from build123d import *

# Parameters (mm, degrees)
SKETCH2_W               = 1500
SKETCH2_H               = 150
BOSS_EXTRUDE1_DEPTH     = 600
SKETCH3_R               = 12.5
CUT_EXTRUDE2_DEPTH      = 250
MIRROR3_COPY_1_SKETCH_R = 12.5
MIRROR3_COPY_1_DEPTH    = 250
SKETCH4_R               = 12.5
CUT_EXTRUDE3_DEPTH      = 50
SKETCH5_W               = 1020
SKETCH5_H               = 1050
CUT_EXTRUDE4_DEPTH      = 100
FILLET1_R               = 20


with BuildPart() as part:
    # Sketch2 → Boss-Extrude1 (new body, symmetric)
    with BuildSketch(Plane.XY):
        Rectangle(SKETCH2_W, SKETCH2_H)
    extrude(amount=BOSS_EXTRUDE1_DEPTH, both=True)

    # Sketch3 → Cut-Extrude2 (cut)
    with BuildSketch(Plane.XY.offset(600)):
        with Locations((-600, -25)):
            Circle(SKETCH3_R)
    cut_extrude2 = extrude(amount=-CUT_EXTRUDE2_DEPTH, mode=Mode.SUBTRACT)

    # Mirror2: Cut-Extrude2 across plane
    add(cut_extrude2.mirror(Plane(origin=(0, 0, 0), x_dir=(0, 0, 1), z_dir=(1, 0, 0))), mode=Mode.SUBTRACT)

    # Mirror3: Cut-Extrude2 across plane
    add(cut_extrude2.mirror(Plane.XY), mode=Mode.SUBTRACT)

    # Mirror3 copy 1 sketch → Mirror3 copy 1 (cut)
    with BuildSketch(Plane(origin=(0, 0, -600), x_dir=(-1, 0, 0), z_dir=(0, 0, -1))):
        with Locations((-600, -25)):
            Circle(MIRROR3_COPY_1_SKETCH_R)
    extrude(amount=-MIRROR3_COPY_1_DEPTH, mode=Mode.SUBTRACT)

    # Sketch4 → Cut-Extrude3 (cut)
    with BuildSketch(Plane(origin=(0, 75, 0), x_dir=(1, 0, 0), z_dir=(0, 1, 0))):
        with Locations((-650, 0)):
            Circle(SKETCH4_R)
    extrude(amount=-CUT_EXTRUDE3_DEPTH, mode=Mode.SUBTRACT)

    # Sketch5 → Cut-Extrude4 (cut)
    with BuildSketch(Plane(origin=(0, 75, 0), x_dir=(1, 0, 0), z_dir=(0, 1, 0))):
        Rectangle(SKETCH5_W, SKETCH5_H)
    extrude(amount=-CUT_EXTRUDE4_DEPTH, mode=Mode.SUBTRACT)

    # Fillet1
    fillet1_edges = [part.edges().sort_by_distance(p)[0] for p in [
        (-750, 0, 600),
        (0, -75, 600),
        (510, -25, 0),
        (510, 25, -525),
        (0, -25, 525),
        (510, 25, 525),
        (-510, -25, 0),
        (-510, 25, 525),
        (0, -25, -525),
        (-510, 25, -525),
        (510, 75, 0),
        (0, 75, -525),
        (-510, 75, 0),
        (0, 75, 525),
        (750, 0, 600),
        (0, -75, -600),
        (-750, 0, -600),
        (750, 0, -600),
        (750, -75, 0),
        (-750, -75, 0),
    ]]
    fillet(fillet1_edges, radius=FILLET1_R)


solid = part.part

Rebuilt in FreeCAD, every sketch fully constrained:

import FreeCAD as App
import Part
import Sketcher
Q = App.Units.Quantity


def edges_at(feature, points):
    """Names of the edges that pass closest to the given points."""
    edges = feature.Shape.Edges
    near = lambda p: min(range(len(edges)), key=lambda i: edges[i].distToShape(Part.Vertex(*p))[0])
    return sorted({f"Edge{near(p) + 1}" for p in points})

doc = App.newDocument("Part")
body = doc.addObject("PartDesign::Body", "Body")

# Sketch on XY plane
sketch1 = body.newObject("Sketcher::SketchObject", "Sketch")
sketch1.AttachmentSupport = (doc.getObject("XY_Plane"), [""])
sketch1.MapMode = "FlatFace"
sketch1.addGeometry([
    Part.LineSegment(App.Vector(-750, 75, 0), App.Vector(-750, -75, 0)),
    Part.LineSegment(App.Vector(-750, -75, 0), App.Vector(750, -75, 0)),
    Part.LineSegment(App.Vector(750, -75, 0), App.Vector(750, 75, 0)),
    Part.LineSegment(App.Vector(750, 75, 0), App.Vector(-750, 75, 0)),
], False)
sketch1.addConstraint([
    Sketcher.Constraint("Coincident", 0, 2, 1, 1),
    Sketcher.Constraint("Coincident", 1, 2, 2, 1),
    Sketcher.Constraint("Coincident", 2, 2, 3, 1),
    Sketcher.Constraint("Coincident", 3, 2, 0, 1),
    Sketcher.Constraint("Vertical", 0),
    Sketcher.Constraint("Horizontal", 1),
    Sketcher.Constraint("Vertical", 2),
    Sketcher.Constraint("Horizontal", 3),
    Sketcher.Constraint("Symmetric", 0, 2, 2, 2, -1, 1),
    Sketcher.Constraint("DistanceX", 1, 1, 1, 2, Q("1500 mm")),
    Sketcher.Constraint("DistanceY", 0, 2, 0, 1, Q("150 mm")),
])
pad1 = body.newObject("PartDesign::Pad", "Pad")
pad1.Profile = sketch1
pad1.Length = 1200
pad1.Midplane = True

# Sketch on XY plane
sketch2 = body.newObject("Sketcher::SketchObject", "Sketch001")
sketch2.AttachmentSupport = (doc.getObject("XY_Plane"), [""])
sketch2.MapMode = "FlatFace"
sketch2.AttachmentOffset = App.Placement(App.Vector(0, 0, 600), App.Rotation())
sketch2.addGeometry(Part.Circle(App.Vector(-600, -25, 0), App.Vector(0, 0, 1), 12), False)
sketch2.addConstraint([
    Sketcher.Constraint("Diameter", 0, Q("25 mm")),
    Sketcher.Constraint("DistanceX", 0, 3, -1, 1, Q("600 mm")),
    Sketcher.Constraint("DistanceY", 0, 3, -1, 1, Q("25 mm")),
])
pocket1 = body.newObject("PartDesign::Pocket", "Pocket")
pocket1.Profile = sketch2
pocket1.Length = 250
doc.recompute()

mirrored = body.newObject("PartDesign::Mirrored", "Mirrored")
mirrored.Originals = [pocket1]
mirrored.MirrorPlane = (doc.getObject("YZ_Plane"), [""])
body.Tip = mirrored
doc.recompute()

mirrored2 = body.newObject("PartDesign::Mirrored", "Mirrored001")
mirrored2.Originals = [pocket1]
mirrored2.MirrorPlane = (doc.getObject("XY_Plane"), [""])
body.Tip = mirrored2

# Sketch on XY plane
sketch3 = body.newObject("Sketcher::SketchObject", "Sketch002")
sketch3.AttachmentSupport = (doc.getObject("XY_Plane"), [""])
sketch3.MapMode = "FlatFace"
sketch3.AttachmentOffset = App.Placement(App.Vector(0, 0, -600), App.Rotation())
sketch3.addGeometry(Part.Circle(App.Vector(600, -25, 0), App.Vector(0, 0, 1), 12), False)
sketch3.addConstraint([
    Sketcher.Constraint("Diameter", 0, Q("25 mm")),
    Sketcher.Constraint("DistanceX", -1, 1, 0, 3, Q("600 mm")),
    Sketcher.Constraint("DistanceY", 0, 3, -1, 1, Q("25 mm")),
])
pocket2 = body.newObject("PartDesign::Pocket", "Pocket001")
pocket2.Profile = sketch3
pocket2.Length = 250
pocket2.Reversed = True

# Sketch on XZ plane
sketch4 = body.newObject("Sketcher::SketchObject", "Sketch003")
sketch4.AttachmentSupport = (doc.getObject("XZ_Plane"), [""])
sketch4.MapMode = "FlatFace"
sketch4.AttachmentOffset = App.Placement(App.Vector(0, 0, -75), App.Rotation())
sketch4.addGeometry(Part.Circle(App.Vector(-650, 0, 0), App.Vector(0, 0, 1), 12), False)
sketch4.addConstraint([
    Sketcher.Constraint("PointOnObject", 0, 3, -1),
    Sketcher.Constraint("Diameter", 0, Q("25 mm")),
    Sketcher.Constraint("DistanceX", 0, 3, -1, 1, Q("650 mm")),
])
pocket3 = body.newObject("PartDesign::Pocket", "Pocket002")
pocket3.Profile = sketch4
pocket3.Length = 50
pocket3.Reversed = True

# Sketch on XZ plane
sketch5 = body.newObject("Sketcher::SketchObject", "Sketch004")
sketch5.AttachmentSupport = (doc.getObject("XZ_Plane"), [""])
sketch5.MapMode = "FlatFace"
sketch5.AttachmentOffset = App.Placement(App.Vector(0, 0, -75), App.Rotation())
sketch5.addGeometry([
    Part.LineSegment(App.Vector(-510, -525, 0), App.Vector(-510, 525, 0)),
    Part.LineSegment(App.Vector(-510, 525, 0), App.Vector(510, 525, 0)),
    Part.LineSegment(App.Vector(510, 525, 0), App.Vector(510, -525, 0)),
    Part.LineSegment(App.Vector(510, -525, 0), App.Vector(-510, -525, 0)),
], False)
sketch5.addConstraint([
    Sketcher.Constraint("Coincident", 0, 2, 1, 1),
    Sketcher.Constraint("Coincident", 1, 2, 2, 1),
    Sketcher.Constraint("Coincident", 2, 2, 3, 1),
    Sketcher.Constraint("Coincident", 3, 2, 0, 1),
    Sketcher.Constraint("Vertical", 0),
    Sketcher.Constraint("Horizontal", 1),
    Sketcher.Constraint("Vertical", 2),
    Sketcher.Constraint("Horizontal", 3),
    Sketcher.Constraint("Symmetric", 0, 2, 2, 2, -1, 1),
    Sketcher.Constraint("DistanceX", 1, 1, 1, 2, Q("1020 mm")),
    Sketcher.Constraint("DistanceY", 0, 1, 0, 2, Q("1050 mm")),
])
pocket4 = body.newObject("PartDesign::Pocket", "Pocket003")
pocket4.Profile = sketch5
pocket4.Length = 100
pocket4.Reversed = True
doc.recompute()

fillet = body.newObject("PartDesign::Fillet", "Fillet")
fillet.Base = (pocket4, edges_at(pocket4, [
    (-750, 0, 600),
    (0, -75, 600),
    (510, -25, 0),
    (510, 25, -525),
    (0, -25, 525),
    (510, 25, 525),
    (-510, -25, 0),
    (-510, 25, 525),
    (0, -25, -525),
    (-510, 25, -525),
    (510, 75, 0),
    (0, 75, -525),
    (-510, 75, 0),
    (0, 75, 525),
    (750, 0, 600),
    (0, -75, -600),
    (-750, 0, -600),
    (750, 0, -600),
    (750, -75, 0),
    (-750, -75, 0),
]))
fillet.Radius = 20

doc.recompute()
